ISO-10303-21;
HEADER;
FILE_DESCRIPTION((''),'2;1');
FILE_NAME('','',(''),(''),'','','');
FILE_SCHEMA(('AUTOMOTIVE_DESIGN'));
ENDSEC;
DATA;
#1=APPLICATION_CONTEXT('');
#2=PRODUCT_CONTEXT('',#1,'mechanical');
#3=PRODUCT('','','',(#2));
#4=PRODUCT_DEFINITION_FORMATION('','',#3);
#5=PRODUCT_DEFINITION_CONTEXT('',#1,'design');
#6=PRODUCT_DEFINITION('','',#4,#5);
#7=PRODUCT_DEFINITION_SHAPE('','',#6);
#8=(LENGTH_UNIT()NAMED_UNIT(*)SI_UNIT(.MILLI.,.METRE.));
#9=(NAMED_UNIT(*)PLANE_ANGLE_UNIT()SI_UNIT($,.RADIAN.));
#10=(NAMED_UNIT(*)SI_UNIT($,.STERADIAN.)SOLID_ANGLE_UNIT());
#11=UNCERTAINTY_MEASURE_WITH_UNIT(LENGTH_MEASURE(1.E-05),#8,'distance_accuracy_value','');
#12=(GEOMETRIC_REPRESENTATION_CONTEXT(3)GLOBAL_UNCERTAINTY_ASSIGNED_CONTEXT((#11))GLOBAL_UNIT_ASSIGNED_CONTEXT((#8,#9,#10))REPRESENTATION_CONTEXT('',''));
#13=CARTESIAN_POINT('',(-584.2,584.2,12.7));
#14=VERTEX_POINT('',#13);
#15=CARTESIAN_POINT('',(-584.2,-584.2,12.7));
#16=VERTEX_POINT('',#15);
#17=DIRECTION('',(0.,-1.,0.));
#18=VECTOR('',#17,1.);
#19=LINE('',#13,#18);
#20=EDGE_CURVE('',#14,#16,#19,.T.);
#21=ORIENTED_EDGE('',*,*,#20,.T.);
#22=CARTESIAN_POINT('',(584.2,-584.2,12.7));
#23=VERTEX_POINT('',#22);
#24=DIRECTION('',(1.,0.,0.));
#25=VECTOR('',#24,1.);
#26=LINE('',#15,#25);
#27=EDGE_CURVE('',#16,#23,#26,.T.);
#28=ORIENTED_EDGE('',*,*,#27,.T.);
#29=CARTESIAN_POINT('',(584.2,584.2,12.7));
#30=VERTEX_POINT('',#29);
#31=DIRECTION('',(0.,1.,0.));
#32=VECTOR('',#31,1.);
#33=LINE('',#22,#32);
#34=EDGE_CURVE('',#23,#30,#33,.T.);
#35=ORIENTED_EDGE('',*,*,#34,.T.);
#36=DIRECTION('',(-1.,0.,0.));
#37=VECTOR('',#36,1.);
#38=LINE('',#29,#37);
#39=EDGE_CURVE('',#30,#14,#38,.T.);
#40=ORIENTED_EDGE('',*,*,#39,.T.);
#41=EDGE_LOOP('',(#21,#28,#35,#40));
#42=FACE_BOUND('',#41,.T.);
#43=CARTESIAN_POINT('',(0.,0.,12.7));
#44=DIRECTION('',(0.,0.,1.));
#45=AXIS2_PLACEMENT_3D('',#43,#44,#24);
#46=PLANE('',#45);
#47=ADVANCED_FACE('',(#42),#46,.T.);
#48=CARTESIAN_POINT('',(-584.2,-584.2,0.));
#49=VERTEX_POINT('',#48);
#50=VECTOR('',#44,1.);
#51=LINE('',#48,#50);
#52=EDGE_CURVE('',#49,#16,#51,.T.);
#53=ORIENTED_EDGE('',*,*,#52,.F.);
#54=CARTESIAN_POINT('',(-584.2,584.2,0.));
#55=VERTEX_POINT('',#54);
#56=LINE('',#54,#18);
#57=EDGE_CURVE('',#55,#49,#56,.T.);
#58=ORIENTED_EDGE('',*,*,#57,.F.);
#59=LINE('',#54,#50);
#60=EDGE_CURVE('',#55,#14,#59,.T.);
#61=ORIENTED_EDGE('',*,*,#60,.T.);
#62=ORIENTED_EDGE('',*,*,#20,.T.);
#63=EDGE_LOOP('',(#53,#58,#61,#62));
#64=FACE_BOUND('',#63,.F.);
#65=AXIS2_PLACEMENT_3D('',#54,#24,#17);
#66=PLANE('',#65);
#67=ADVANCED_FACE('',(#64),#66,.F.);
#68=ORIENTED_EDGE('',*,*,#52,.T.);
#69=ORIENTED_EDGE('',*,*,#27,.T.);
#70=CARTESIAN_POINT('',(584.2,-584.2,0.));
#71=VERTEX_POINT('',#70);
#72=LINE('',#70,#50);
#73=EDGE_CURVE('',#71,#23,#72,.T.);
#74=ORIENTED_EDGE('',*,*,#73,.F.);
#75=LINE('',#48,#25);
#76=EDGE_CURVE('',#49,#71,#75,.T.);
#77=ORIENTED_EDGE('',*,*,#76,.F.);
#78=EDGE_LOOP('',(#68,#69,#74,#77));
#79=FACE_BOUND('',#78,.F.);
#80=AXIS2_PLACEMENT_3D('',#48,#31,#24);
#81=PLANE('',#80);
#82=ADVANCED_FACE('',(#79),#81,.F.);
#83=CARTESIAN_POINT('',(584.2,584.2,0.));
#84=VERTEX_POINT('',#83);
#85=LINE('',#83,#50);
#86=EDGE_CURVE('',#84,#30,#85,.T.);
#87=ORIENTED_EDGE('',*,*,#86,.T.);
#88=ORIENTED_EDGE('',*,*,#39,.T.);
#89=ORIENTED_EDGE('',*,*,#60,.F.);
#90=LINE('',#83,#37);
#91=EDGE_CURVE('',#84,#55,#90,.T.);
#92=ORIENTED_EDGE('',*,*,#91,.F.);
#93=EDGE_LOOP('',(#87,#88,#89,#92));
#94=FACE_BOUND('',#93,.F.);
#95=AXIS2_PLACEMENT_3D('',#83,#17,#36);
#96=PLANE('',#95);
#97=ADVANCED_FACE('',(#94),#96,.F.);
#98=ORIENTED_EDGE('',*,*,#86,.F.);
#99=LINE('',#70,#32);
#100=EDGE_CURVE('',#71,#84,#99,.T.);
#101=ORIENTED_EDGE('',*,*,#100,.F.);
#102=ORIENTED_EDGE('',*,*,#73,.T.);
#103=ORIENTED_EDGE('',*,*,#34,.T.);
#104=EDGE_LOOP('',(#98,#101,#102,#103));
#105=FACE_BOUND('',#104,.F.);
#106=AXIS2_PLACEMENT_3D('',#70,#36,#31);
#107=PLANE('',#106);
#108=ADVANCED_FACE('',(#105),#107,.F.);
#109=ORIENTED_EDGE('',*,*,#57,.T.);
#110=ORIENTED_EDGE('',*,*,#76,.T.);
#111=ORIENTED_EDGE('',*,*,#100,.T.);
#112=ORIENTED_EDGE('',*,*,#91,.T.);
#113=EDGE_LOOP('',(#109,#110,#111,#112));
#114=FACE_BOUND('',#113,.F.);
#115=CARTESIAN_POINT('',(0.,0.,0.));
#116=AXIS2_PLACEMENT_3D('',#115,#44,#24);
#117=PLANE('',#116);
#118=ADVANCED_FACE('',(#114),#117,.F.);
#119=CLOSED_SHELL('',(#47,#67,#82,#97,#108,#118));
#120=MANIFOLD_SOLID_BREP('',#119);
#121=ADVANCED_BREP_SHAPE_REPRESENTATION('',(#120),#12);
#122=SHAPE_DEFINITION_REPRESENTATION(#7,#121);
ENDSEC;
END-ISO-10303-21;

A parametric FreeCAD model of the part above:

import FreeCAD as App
import Part
import Sketcher

V = App.Vector
Q = App.Units.Quantity


def add_polygon(sketch, points):
    """Adds a closed chain of lines whose ends are joined by coincident constraints."""
    first, n = sketch.GeometryCount, len(points)
    for a, b in zip(points, points[1:] + points[:1]):
        sketch.addGeometry(Part.LineSegment(App.Vector(*a, 0), App.Vector(*b, 0)), False)
    for i in range(n):
        sketch.addConstraint(Sketcher.Constraint("Coincident", first + i, 2, first + (i + 1) % n, 1))

doc = App.newDocument("Part")
body = doc.addObject("PartDesign::Body", "Body")

# Sketch on XY plane
sketch1 = doc.addObject("Sketcher::SketchObject", "Sketch")
body.addObject(sketch1)
sketch1.AttachmentSupport = (doc.XY_Plane, [""])
sketch1.MapMode = "FlatFace"
add_polygon(sketch1, [(-584, 584), (-584, -584), (584, -584), (584, 584)])  # lines 0-3
sketch1.addConstraint(Sketcher.Constraint("Vertical", 0))
sketch1.addConstraint(Sketcher.Constraint("Horizontal", 1))
sketch1.addConstraint(Sketcher.Constraint("Vertical", 2))
sketch1.addConstraint(Sketcher.Constraint("Horizontal", 3))
sketch1.addConstraint(Sketcher.Constraint("Symmetric", 0, 2, 2, 2, -1, 1))
sketch1.addConstraint(Sketcher.Constraint("Equal", 3, 0))
sketch1.addConstraint(Sketcher.Constraint("DistanceX", 1, 1, 1, 2, Q("46 in")))
pad1 = doc.addObject("PartDesign::Pad", "Pad")
body.addObject(pad1)
pad1.Profile = sketch1
pad1.Length = Q("0.5 in")

doc.recompute()
